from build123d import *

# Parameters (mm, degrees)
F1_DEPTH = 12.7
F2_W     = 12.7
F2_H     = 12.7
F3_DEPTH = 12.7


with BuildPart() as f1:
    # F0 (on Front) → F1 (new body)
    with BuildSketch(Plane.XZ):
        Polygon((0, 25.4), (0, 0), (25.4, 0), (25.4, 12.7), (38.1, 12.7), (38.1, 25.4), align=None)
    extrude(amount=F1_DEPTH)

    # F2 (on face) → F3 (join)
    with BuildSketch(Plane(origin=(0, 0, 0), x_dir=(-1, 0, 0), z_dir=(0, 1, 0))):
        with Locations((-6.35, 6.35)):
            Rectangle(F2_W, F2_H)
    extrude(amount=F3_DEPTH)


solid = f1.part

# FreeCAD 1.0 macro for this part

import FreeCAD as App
import Part
import Sketcher
Q = App.Units.Quantity

doc = App.newDocument("Part")
params = doc.addObject("Spreadsheet::Sheet", "Params")
for row, (alias, value) in enumerate([
    ("sketch1_width", "1 in"),
    ("pad1_length", "0.5 in"),
    ("sketch2_width", "0.5 in"),
    ("pad2_length", "0.5 in"),
], start=1):
    params.set(f"A{row}", alias)
    params.set(f"B{row}", "=" + value)
    params.setAlias(f"B{row}", alias)

body = doc.addObject("PartDesign::Body", "Body")

# Sketch on XZ plane
sketch1 = body.newObject("Sketcher::SketchObject", "Sketch")
sketch1.AttachmentSupport = (doc.getObject("XZ_Plane"), [""])
sketch1.MapMode = "FlatFace"
sketch1.addGeometry([
    Part.LineSegment(App.Vector(0, 25, 0), App.Vector(0, 0, 0)),  # 0
    Part.LineSegment(App.Vector(0, 0, 0), App.Vector(25, 0, 0)),  # 1
    Part.LineSegment(App.Vector(25, 0, 0), App.Vector(25, 13, 0)),  # 2
    Part.LineSegment(App.Vector(25, 13, 0), App.Vector(38, 13, 0)),  # 3
    Part.LineSegment(App.Vector(38, 13, 0), App.Vector(38, 25, 0)),  # 4
    Part.LineSegment(App.Vector(38, 25, 0), App.Vector(0, 25, 0)),  # 5
], False)
sketch1.addConstraint([
    Sketcher.Constraint("Coincident", 0, 2, 1, 1),
    Sketcher.Constraint("Coincident", 1, 2, 2, 1),
    Sketcher.Constraint("Coincident", 2, 2, 3, 1),
    Sketcher.Constraint("Coincident", 3, 2, 4, 1),
    Sketcher.Constraint("Coincident", 4, 2, 5, 1),
    Sketcher.Constraint("Coincident", 5, 2, 0, 1),
    Sketcher.Constraint("Vertical", 0),
    Sketcher.Constraint("Horizontal", 1),
    Sketcher.Constraint("Vertical", 2),
    Sketcher.Constraint("Horizontal", 3),
    Sketcher.Constraint("Vertical", 4),
    Sketcher.Constraint("Horizontal", 5),
    Sketcher.Constraint("Coincident", 0, 2, -1, 1),
    Sketcher.Constraint("Equal", 1, 0),
    Sketcher.Constraint("Equal", 3, 2),
    Sketcher.Constraint("Equal", 2, 4),
    Sketcher.Constraint("DistanceX", 1, 1, 1, 2, Q("1 in")),
])
sketch1.setExpression("Constraints[16]", "Params.sketch1_width")
pad1 = body.newObject("PartDesign::Pad", "Pad")
pad1.Profile = sketch1
pad1.setExpression("Length", "Params.pad1_length")

# Sketch on XZ plane
sketch2 = body.newObject("Sketcher::SketchObject", "Sketch001")
sketch2.AttachmentSupport = (doc.getObject("XZ_Plane"), [""])
sketch2.MapMode = "FlatFace"
sketch2.addGeometry([
    Part.LineSegment(App.Vector(13, 13, 0), App.Vector(13, 0, 0)),
    Part.LineSegment(App.Vector(13, 0, 0), App.Vector(0, 0, 0)),
    Part.LineSegment(App.Vector(0, 0, 0), App.Vector(0, 13, 0)),
    Part.LineSegment(App.Vector(0, 13, 0), App.Vector(13, 13, 0)),
], False)
sketch2.addConstraint([
    Sketcher.Constraint("Coincident", 0, 2, 1, 1),
    Sketcher.Constraint("Coincident", 1, 2, 2, 1),
    Sketcher.Constraint("Coincident", 2, 2, 3, 1),
    Sketcher.Constraint("Coincident", 3, 2, 0, 1),
    Sketcher.Constraint("Vertical", 0),
    Sketcher.Constraint("Horizontal", 1),
    Sketcher.Constraint("Vertical", 2),
    Sketcher.Constraint("Horizontal", 3),
    Sketcher.Constraint("Coincident", 1, 2, -1, 1),
    Sketcher.Constraint("Equal", 3, 0),
    Sketcher.Constraint("DistanceX", 1, 2, 1, 1, Q("0.5 in")),
])
sketch2.setExpression("Constraints[10]", "Params.sketch2_width")
pad2 = body.newObject("PartDesign::Pad", "Pad001")
pad2.Profile = sketch2
pad2.setExpression("Length", "Params.pad2_length")
pad2.Reversed = True

doc.recompute()
